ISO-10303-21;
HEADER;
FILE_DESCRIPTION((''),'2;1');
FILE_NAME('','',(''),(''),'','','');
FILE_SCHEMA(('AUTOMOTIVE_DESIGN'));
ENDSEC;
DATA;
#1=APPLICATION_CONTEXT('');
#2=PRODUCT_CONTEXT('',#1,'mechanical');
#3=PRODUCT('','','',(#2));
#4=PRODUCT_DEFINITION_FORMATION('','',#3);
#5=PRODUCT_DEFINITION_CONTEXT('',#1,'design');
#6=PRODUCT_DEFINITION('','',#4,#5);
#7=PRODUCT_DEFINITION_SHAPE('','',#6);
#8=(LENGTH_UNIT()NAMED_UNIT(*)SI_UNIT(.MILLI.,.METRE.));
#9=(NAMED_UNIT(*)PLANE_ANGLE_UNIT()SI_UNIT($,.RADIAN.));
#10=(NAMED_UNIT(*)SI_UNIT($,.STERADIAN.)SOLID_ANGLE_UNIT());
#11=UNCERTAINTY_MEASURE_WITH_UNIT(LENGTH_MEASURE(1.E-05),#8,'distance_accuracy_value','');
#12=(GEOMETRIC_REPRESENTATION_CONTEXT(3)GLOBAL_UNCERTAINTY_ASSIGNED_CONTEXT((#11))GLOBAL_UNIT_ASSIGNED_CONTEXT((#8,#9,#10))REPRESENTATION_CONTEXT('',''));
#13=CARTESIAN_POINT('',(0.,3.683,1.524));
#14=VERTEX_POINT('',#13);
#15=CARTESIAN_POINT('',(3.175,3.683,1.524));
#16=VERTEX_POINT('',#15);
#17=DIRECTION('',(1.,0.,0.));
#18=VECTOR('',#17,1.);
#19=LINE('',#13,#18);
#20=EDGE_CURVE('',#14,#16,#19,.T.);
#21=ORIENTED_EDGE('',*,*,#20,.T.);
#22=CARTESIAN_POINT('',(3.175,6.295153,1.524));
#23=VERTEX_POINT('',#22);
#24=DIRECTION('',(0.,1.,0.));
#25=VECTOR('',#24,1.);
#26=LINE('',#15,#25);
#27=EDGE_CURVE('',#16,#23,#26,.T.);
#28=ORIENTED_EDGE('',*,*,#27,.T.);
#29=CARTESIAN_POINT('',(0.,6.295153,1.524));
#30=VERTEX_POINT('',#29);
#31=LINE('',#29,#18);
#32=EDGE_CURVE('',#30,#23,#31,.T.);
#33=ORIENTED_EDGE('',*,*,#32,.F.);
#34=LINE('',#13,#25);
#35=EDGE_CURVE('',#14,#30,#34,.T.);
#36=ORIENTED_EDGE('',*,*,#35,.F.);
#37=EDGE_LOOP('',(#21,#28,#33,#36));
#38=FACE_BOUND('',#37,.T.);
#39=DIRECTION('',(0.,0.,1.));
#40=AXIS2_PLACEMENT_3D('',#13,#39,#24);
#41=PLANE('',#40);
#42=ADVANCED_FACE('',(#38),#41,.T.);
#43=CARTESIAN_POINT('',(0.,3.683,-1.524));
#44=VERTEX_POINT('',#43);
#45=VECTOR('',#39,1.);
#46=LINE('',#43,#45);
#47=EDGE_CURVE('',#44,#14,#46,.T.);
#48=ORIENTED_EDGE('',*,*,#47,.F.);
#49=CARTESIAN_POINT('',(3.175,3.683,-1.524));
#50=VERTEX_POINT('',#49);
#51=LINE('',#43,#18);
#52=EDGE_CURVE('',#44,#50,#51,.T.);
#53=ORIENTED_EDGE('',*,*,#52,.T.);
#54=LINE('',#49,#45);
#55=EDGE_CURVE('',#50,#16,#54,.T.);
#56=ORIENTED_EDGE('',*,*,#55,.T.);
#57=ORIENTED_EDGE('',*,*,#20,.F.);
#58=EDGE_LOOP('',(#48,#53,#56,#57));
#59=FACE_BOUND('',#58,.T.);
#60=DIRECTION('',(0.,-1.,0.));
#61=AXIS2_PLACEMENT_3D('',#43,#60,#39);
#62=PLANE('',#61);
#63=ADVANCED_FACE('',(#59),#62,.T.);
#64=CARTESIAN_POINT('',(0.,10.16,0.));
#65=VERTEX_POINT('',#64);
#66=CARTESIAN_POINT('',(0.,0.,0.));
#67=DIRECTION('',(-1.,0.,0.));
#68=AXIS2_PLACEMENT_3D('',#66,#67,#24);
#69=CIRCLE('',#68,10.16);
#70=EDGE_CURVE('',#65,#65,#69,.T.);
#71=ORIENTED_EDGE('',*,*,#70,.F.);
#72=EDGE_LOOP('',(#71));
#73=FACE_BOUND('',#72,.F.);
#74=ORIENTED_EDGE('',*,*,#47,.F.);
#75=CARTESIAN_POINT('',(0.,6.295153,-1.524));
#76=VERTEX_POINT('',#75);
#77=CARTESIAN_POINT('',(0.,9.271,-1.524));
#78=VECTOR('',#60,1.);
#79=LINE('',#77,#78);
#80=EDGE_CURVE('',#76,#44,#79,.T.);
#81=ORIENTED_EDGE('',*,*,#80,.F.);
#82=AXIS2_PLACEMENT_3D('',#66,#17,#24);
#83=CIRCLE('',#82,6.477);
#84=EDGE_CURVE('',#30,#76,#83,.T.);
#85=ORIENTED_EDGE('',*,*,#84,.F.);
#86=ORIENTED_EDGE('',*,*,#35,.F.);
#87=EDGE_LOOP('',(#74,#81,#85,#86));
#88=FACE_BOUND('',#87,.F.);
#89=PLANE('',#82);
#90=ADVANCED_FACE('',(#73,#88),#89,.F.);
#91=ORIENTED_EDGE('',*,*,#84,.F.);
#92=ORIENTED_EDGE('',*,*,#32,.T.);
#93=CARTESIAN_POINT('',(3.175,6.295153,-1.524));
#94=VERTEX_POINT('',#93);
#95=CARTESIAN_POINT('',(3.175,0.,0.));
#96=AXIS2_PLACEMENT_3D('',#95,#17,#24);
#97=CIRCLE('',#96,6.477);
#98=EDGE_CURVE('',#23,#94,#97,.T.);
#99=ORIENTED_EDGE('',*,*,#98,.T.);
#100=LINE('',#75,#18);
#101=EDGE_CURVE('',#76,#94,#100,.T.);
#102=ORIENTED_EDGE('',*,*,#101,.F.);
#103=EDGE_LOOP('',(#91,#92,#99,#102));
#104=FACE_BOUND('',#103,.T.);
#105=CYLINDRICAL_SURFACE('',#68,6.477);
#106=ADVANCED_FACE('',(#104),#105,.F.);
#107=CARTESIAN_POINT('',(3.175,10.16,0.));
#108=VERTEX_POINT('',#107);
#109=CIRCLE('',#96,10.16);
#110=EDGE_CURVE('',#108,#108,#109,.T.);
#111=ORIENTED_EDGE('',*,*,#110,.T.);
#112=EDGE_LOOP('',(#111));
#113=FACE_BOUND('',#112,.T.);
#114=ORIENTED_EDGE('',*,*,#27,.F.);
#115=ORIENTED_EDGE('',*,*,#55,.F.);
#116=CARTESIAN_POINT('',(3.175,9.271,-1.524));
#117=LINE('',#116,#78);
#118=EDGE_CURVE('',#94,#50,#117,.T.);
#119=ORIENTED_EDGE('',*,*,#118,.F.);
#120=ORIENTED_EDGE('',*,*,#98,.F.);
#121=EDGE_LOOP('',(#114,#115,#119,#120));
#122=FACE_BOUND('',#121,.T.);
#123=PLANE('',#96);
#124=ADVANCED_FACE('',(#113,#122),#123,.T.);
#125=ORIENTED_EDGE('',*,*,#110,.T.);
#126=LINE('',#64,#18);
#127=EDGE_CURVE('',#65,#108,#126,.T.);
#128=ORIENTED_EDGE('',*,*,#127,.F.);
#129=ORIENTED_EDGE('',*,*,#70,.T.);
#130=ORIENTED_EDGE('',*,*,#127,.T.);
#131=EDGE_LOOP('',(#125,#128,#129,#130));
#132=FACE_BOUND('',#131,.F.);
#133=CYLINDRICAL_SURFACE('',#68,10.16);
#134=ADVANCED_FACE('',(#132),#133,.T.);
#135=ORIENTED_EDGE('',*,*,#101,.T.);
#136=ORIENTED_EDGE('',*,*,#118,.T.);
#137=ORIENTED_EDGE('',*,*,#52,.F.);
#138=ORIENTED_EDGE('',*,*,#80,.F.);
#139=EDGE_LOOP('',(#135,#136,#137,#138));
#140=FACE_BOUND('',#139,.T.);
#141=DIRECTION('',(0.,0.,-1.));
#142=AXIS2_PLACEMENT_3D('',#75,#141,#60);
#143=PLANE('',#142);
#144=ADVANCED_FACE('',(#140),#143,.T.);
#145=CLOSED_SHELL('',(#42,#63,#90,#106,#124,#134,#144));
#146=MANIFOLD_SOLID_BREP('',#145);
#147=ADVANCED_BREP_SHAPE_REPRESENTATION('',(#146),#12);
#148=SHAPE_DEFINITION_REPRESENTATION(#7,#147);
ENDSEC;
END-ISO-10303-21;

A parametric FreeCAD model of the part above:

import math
import FreeCAD as App
import Part
import Sketcher
Q = App.Units.Quantity

doc = App.newDocument("Part")
body = doc.addObject("PartDesign::Body", "Body")

# Sketch on YZ plane
sketch1 = doc.addObject("Sketcher::SketchObject", "Sketch")
body.addObject(sketch1)
sketch1.AttachmentSupport = (doc.YZ_Plane, [""])
sketch1.MapMode = "FlatFace"
sketch1.addGeometry([
    Part.Circle(App.Vector(0, 0, 0), App.Vector(0, 0, 1), 10.2),  # 0
    Part.LineSegment(App.Vector(3.7, -1.5, 0), App.Vector(6.3, -1.5, 0)),  # 1
    Part.ArcOfCircle(Part.Circle(App.Vector(0, 0, 0), App.Vector(0, 0, 1), 6.5), math.radians(14), math.radians(346)),  # 2
    Part.LineSegment(App.Vector(6.3, 1.5, 0), App.Vector(3.7, 1.5, 0)),  # 3
    Part.LineSegment(App.Vector(3.7, 1.5, 0), App.Vector(3.7, -1.5, 0)),  # 4
], False)
sketch1.addConstraint([
    Sketcher.Constraint("Coincident", 1, 2, 2, 2),
    Sketcher.Constraint("Coincident", 2, 1, 3, 1),
    Sketcher.Constraint("Coincident", 3, 2, 4, 1),
    Sketcher.Constraint("Coincident", 4, 2, 1, 1),
    Sketcher.Constraint("Horizontal", 1),
    Sketcher.Constraint("Horizontal", 3),
    Sketcher.Constraint("Vertical", 4),
    Sketcher.Constraint("Coincident", 0, 3, -1, 1),
    Sketcher.Constraint("Coincident", 2, 3, -1, 1),
    Sketcher.Constraint("Vertical", 1, 2, 2, 1),
    Sketcher.Constraint("Diameter", 0, Q("0.8 in")),
    Sketcher.Constraint("Radius", 2, Q("0.255 in")),
    Sketcher.Constraint("DistanceY", 4, 2, 4, 1, Q("0.12 in")),
    Sketcher.Constraint("DistanceX", -1, 1, 3, 2, Q("0.145 in")),
])
pad1 = doc.addObject("PartDesign::Pad", "Pad")
body.addObject(pad1)
pad1.Profile = sketch1
pad1.Length = Q("0.125 in")

doc.recompute()
